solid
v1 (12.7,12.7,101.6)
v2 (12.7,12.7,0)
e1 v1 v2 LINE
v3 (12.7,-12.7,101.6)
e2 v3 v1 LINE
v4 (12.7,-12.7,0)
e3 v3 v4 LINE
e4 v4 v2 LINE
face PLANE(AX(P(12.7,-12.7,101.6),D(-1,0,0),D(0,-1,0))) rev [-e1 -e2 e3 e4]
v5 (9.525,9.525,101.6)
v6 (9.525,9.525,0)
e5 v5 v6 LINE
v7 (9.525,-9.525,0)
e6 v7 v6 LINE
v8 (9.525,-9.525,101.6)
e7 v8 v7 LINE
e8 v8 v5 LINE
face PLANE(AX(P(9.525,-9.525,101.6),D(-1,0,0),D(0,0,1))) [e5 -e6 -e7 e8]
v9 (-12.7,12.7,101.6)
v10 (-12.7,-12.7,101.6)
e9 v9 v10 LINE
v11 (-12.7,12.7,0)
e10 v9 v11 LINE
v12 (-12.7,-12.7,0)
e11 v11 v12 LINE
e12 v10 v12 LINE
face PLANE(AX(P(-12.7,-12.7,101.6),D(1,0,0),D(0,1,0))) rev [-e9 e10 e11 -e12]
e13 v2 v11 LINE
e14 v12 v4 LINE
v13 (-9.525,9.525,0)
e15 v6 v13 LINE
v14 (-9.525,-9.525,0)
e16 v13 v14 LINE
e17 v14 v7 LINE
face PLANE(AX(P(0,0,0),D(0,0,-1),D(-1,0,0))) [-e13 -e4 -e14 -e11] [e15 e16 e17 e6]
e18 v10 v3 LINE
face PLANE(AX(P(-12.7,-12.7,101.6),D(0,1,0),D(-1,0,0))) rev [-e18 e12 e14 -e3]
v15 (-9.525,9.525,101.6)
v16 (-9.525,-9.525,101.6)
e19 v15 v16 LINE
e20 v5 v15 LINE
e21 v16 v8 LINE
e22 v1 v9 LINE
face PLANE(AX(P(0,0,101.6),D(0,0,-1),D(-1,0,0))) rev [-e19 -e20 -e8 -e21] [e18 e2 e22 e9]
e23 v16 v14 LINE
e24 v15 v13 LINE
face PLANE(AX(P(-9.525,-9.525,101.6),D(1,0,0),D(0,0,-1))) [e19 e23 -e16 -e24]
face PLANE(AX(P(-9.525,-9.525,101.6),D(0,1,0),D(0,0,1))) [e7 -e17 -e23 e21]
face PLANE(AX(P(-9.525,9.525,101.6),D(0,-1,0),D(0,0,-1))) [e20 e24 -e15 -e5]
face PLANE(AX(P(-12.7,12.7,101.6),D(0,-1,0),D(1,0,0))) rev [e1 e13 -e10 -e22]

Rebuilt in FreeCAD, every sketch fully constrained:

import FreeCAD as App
import Part
import Sketcher
from FreeCAD import Vector
Q = App.Units.Quantity


def add_polygon(sketch, points):
    """Adds a closed chain of lines whose ends are joined by coincident constraints."""
    first, n = sketch.GeometryCount, len(points)
    for a, b in zip(points, points[1:] + points[:1]):
        sketch.addGeometry(Part.LineSegment(App.Vector(*a, 0), App.Vector(*b, 0)), False)
    for i in range(n):
        sketch.addConstraint(Sketcher.Constraint("Coincident", first + i, 2, first + (i + 1) % n, 1))

doc = App.newDocument("Part")
body = doc.addObject("PartDesign::Body", "Body")

sketch1 = doc.addObject("Sketcher::SketchObject", "Sketch")
body.addObject(sketch1)
sketch1.AttachmentSupport = (doc.XY_Plane, [""])
sketch1.MapMode = "FlatFace"
add_polygon(sketch1, [(-12.7, 12.7), (-12.7, -12.7), (12.7, -12.7), (12.7, 12.7)])
add_polygon(sketch1, [(9.525, -9.525), (-9.525, -9.525), (-9.525, 9.525), (9.525, 9.525)])
sketch1.addConstraint([
    Sketcher.Constraint("Vertical", 0),
    Sketcher.Constraint("Horizontal", 1),
    Sketcher.Constraint("Vertical", 2),
    Sketcher.Constraint("Horizontal", 3),
    Sketcher.Constraint("Horizontal", 4),
    Sketcher.Constraint("Vertical", 5),
    Sketcher.Constraint("Horizontal", 6),
    Sketcher.Constraint("Vertical", 7),
    Sketcher.Constraint("Symmetric", 0, 2, 2, 2, -1, 1),
    Sketcher.Constraint("Symmetric", 4, 2, 6, 2, -1, 1),
    Sketcher.Constraint("Equal", 3, 0),
    Sketcher.Constraint("Equal", 6, 5),
    Sketcher.Constraint("DistanceX", 1, 1, 1, 2, Q("1 in")),
    Sketcher.Constraint("DistanceX", 4, 2, 4, 1, Q("0.75 in")),
])
pad1 = doc.addObject("PartDesign::Pad", "Pad")
body.addObject(pad1)
pad1.Profile = sketch1
pad1.Length = Q("4 in")

doc.recompute()
